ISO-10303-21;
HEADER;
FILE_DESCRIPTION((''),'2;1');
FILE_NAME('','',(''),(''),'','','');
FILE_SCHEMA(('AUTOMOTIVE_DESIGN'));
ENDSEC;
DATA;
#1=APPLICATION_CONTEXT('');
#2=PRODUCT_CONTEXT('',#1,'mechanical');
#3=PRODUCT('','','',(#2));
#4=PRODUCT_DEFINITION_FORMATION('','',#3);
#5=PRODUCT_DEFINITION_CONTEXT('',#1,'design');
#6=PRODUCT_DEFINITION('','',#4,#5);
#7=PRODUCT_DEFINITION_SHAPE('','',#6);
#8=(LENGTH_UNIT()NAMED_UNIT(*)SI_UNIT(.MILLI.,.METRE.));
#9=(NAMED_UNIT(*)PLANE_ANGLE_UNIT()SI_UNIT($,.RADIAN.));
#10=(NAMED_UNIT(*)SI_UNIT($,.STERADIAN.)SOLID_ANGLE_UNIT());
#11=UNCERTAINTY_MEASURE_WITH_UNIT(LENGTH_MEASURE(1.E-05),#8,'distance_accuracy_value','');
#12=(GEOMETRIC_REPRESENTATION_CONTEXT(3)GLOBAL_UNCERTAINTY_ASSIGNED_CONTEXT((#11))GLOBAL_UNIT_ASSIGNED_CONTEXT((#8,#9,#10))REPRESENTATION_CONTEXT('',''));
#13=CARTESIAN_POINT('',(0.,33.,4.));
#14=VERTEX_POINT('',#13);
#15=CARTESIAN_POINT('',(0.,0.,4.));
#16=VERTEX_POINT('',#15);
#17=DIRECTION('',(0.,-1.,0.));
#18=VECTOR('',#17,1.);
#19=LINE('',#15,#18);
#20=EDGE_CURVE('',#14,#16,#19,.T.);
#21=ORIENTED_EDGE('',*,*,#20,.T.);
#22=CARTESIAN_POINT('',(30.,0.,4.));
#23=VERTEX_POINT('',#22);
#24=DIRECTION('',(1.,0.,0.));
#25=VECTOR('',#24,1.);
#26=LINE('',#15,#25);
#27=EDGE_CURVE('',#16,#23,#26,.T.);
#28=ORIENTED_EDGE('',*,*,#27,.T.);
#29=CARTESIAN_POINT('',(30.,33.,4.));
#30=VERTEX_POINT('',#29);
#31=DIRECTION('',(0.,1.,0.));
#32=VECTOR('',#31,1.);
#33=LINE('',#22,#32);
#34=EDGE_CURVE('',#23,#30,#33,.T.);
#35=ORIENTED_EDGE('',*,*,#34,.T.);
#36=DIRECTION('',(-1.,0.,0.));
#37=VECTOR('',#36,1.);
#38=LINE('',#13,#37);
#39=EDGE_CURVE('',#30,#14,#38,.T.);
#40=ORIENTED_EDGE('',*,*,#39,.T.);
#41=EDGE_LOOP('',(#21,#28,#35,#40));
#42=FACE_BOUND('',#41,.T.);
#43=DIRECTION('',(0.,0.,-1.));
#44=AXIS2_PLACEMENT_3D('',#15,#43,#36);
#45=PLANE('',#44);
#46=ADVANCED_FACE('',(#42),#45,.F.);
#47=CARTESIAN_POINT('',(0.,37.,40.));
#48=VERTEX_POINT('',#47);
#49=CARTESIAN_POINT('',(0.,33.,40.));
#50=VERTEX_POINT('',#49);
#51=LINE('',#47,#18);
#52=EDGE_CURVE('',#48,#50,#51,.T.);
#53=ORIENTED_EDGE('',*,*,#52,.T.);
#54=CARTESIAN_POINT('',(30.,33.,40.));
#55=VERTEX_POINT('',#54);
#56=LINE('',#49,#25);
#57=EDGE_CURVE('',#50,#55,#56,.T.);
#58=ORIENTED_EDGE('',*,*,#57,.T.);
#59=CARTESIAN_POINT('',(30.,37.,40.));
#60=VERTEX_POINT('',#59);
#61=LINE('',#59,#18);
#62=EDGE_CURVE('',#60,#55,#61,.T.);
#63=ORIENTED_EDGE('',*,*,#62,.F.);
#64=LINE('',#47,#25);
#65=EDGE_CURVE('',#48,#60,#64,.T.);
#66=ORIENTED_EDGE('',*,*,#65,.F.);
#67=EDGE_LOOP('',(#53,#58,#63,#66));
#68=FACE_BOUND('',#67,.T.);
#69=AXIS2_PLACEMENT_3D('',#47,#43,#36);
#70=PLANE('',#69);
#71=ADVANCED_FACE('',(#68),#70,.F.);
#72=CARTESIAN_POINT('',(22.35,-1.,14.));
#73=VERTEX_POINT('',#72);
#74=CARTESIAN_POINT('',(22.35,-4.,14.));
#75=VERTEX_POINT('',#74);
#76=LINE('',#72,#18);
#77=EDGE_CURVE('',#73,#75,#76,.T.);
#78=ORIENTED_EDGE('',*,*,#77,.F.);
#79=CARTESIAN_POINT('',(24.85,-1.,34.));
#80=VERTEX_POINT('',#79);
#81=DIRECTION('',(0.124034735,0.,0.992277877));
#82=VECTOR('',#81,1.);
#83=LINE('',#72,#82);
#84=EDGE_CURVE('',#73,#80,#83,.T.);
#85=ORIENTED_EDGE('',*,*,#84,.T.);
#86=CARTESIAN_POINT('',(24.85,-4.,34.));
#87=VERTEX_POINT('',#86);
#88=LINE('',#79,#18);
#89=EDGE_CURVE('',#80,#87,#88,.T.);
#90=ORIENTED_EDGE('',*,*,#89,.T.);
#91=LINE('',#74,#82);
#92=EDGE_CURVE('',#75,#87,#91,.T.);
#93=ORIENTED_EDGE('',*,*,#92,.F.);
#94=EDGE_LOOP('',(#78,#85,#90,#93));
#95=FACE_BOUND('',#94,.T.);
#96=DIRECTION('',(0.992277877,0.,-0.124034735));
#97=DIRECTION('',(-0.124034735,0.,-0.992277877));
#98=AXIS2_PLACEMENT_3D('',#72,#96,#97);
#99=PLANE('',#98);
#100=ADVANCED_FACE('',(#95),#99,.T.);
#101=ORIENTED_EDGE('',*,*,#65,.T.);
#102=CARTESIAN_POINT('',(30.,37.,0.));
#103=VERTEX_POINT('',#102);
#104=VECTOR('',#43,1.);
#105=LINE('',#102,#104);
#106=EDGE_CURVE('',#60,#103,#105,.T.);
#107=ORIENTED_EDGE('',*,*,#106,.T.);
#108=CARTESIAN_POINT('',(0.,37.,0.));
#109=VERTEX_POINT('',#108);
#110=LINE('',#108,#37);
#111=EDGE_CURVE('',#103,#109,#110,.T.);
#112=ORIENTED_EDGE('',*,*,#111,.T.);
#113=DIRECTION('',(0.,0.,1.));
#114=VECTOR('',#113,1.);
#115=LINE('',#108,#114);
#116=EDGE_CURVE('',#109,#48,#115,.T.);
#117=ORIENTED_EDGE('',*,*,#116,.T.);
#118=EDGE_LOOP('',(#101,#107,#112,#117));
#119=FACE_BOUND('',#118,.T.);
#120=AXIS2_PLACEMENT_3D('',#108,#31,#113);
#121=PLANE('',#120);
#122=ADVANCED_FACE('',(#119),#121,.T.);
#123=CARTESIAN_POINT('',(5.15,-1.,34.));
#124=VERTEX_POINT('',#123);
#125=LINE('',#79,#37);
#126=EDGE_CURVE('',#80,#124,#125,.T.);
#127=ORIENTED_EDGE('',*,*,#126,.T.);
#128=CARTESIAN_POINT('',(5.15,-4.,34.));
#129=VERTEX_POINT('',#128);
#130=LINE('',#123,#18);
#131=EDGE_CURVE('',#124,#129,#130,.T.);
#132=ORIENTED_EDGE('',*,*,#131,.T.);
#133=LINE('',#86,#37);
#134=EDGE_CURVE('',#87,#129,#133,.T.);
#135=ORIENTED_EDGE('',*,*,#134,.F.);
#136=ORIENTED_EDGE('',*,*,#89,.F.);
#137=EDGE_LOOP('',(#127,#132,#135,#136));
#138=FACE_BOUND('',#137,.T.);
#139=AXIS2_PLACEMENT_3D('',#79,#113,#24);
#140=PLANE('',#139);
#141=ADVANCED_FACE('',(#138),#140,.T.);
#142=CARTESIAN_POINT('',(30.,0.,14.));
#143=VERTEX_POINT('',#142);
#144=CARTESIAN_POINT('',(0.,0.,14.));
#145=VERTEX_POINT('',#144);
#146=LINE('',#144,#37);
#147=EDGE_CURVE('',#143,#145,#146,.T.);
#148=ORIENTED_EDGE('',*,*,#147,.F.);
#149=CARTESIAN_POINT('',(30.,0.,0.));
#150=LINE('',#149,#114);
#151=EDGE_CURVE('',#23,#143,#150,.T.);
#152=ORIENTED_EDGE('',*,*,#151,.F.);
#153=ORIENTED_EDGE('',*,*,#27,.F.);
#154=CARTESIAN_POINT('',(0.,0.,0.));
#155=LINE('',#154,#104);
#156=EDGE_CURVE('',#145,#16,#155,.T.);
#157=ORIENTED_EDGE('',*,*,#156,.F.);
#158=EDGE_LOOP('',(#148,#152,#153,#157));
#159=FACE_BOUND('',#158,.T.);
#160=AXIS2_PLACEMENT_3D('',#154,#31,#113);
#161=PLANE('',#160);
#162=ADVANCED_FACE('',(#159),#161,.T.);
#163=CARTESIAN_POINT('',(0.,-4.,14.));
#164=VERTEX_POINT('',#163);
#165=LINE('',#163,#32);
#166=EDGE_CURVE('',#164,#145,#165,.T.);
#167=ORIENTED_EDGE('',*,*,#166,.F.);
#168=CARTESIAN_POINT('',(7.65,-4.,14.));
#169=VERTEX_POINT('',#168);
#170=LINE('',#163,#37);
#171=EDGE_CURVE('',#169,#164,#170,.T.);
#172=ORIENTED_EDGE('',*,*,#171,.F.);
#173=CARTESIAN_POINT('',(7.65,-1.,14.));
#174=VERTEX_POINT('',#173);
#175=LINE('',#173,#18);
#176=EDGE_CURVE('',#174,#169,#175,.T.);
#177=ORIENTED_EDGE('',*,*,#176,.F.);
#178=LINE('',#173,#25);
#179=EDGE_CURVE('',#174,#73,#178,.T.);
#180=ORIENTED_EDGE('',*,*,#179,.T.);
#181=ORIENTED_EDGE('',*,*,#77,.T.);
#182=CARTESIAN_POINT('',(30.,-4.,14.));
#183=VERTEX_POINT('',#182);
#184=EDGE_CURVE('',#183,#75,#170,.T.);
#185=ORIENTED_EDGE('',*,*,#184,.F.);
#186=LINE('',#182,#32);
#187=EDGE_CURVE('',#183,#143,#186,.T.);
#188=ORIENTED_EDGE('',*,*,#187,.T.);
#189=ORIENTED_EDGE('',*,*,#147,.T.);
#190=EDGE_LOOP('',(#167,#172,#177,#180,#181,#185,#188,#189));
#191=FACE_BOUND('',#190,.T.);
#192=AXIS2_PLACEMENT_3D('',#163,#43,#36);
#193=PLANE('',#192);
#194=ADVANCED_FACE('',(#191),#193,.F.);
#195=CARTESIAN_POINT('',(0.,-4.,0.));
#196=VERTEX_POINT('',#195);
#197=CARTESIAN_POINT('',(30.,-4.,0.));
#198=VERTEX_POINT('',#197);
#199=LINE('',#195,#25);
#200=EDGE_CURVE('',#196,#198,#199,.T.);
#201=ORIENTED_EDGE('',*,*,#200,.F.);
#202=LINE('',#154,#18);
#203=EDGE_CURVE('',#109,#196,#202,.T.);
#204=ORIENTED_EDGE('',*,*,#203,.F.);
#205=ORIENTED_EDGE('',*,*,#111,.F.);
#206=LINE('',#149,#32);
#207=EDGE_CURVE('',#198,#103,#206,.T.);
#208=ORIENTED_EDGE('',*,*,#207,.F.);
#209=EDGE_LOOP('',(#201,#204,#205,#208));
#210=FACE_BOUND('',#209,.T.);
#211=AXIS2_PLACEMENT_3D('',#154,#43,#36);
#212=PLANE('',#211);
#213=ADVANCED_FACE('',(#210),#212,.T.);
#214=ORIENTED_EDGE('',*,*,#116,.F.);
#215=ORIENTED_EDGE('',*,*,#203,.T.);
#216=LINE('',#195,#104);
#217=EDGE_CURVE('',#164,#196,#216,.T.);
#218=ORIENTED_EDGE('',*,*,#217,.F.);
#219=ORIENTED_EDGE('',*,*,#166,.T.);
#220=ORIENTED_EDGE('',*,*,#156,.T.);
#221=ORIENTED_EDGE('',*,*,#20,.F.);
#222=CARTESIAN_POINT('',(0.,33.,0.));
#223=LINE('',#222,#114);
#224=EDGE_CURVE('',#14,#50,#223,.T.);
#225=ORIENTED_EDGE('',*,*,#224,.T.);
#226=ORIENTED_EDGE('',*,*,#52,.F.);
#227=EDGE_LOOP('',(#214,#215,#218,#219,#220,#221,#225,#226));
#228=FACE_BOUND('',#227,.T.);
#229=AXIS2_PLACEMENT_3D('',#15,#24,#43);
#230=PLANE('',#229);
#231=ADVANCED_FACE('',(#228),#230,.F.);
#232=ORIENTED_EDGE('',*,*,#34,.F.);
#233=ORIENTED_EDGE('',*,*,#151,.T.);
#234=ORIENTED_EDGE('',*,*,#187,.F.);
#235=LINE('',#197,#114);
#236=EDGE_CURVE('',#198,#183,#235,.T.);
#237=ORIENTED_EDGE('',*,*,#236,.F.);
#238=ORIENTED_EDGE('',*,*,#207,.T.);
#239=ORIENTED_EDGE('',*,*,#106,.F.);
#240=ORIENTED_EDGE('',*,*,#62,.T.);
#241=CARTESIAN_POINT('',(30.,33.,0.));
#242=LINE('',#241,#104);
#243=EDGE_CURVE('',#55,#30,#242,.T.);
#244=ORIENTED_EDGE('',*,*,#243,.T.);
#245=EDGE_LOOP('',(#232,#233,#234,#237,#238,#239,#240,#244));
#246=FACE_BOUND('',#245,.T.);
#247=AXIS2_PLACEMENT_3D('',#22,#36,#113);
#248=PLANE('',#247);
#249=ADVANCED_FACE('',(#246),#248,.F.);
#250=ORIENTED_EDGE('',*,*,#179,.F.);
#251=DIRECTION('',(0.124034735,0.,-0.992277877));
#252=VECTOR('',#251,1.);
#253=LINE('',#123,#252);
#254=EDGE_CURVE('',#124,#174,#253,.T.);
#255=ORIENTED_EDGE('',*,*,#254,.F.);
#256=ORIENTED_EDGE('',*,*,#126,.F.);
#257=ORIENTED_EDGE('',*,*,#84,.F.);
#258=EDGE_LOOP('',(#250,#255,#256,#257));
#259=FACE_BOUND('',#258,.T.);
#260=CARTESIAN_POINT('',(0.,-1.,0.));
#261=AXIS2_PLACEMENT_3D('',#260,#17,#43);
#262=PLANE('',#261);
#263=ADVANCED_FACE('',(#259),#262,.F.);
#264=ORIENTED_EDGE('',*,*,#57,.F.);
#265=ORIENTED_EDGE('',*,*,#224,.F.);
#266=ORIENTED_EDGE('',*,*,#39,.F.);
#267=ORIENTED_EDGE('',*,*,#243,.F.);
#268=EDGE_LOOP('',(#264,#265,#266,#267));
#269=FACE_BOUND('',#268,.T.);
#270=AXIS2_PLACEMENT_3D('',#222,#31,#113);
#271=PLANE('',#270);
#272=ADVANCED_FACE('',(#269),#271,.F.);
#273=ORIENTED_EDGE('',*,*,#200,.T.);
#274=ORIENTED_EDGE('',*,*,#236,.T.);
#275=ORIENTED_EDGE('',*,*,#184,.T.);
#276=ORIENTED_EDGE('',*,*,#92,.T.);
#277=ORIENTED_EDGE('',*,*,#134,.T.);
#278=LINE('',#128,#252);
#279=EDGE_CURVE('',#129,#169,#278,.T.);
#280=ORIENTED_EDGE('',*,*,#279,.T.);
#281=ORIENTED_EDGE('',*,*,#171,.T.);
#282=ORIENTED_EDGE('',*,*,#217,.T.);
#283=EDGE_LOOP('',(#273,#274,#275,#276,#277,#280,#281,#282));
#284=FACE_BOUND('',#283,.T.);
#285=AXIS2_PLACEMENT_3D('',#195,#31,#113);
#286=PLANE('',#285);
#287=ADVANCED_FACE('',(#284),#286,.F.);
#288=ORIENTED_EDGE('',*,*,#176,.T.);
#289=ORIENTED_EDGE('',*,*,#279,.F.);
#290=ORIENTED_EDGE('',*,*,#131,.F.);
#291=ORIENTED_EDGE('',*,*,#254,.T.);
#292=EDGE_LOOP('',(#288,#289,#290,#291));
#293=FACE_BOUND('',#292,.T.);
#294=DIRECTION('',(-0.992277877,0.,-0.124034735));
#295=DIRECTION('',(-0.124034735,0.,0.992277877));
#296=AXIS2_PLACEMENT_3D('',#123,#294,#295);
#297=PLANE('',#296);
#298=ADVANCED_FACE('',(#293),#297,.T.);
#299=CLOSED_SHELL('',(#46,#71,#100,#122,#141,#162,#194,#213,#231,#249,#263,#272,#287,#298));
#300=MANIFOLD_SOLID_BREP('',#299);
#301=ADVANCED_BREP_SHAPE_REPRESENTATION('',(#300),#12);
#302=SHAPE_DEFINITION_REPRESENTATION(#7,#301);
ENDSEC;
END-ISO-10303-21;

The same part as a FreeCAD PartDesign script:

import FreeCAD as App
import Part
import Sketcher
from FreeCAD import Vector
Q = App.Units.Quantity


def add_polygon(sketch, points):
    """Adds a closed chain of lines whose ends are joined by coincident constraints."""
    first, n = sketch.GeometryCount, len(points)
    for a, b in zip(points, points[1:] + points[:1]):
        sketch.addGeometry(Part.LineSegment(App.Vector(*a, 0), App.Vector(*b, 0)), False)
    for i in range(n):
        sketch.addConstraint(Sketcher.Constraint("Coincident", first + i, 2, first + (i + 1) % n, 1))

doc = App.newDocument("Part")
body = doc.addObject("PartDesign::Body", "Body")

# Sketch on XY plane
sketch1 = body.newObject("Sketcher::SketchObject", "Sketch")
sketch1.AttachmentSupport = (doc.getObject("XY_Plane"), [""])
sketch1.MapMode = "FlatFace"
add_polygon(sketch1, [(0, 33), (0, 0), (30, 0), (30, 33)])  # lines 0-3
sketch1.addConstraint(Sketcher.Constraint("Vertical", 0))
sketch1.addConstraint(Sketcher.Constraint("Horizontal", 1))
sketch1.addConstraint(Sketcher.Constraint("Vertical", 2))
sketch1.addConstraint(Sketcher.Constraint("Horizontal", 3))
sketch1.addConstraint(Sketcher.Constraint("Coincident", 0, 2, -1, 1))
sketch1.addConstraint(Sketcher.Constraint("DistanceX", 1, 1, 1, 2, Q("30 mm")))
sketch1.addConstraint(Sketcher.Constraint("DistanceY", 0, 2, 0, 1, Q("33 mm")))
pad1 = body.newObject("PartDesign::Pad", "Pad")
pad1.Profile = sketch1
pad1.Length = 4

# Sketch on XZ plane
sketch2 = body.newObject("Sketcher::SketchObject", "Sketch001")
sketch2.AttachmentSupport = (doc.getObject("XZ_Plane"), [""])
sketch2.MapMode = "FlatFace"
sketch2.AttachmentOffset = App.Placement(Vector(0, 0, -33), App.Rotation())
add_polygon(sketch2, [(0, 0), (0, 40), (30, 40), (30, 0)])  # lines 0-3
sketch2.addConstraint(Sketcher.Constraint("Vertical", 0))
sketch2.addConstraint(Sketcher.Constraint("Horizontal", 1))
sketch2.addConstraint(Sketcher.Constraint("Vertical", 2))
sketch2.addConstraint(Sketcher.Constraint("Horizontal", 3))
sketch2.addConstraint(Sketcher.Constraint("Coincident", 3, 2, -1, 1))
sketch2.addConstraint(Sketcher.Constraint("DistanceX", 1, 1, 1, 2, Q("30 mm")))
sketch2.addConstraint(Sketcher.Constraint("DistanceY", 0, 1, 0, 2, Q("40 mm")))
pad2 = body.newObject("PartDesign::Pad", "Pad001")
pad2.Profile = sketch2
pad2.Length = 4
pad2.Reversed = True

# Sketch on XZ plane
sketch3 = body.newObject("Sketcher::SketchObject", "Sketch002")
sketch3.AttachmentSupport = (doc.getObject("XZ_Plane"), [""])
sketch3.MapMode = "FlatFace"
add_polygon(sketch3, [(0, 14), (0, 0), (30, 0), (30, 14)])  # lines 0-3
sketch3.addConstraint(Sketcher.Constraint("Vertical", 0))
sketch3.addConstraint(Sketcher.Constraint("Horizontal", 1))
sketch3.addConstraint(Sketcher.Constraint("Vertical", 2))
sketch3.addConstraint(Sketcher.Constraint("Horizontal", 3))
sketch3.addConstraint(Sketcher.Constraint("Coincident", 0, 2, -1, 1))
sketch3.addConstraint(Sketcher.Constraint("DistanceX", 1, 1, 1, 2, Q("30 mm")))
sketch3.addConstraint(Sketcher.Constraint("DistanceY", 0, 2, 0, 1, Q("14 mm")))
pad3 = body.newObject("PartDesign::Pad", "Pad002")
pad3.Profile = sketch3
pad3.Length = 4

# Sketch on XZ plane
sketch4 = body.newObject("Sketcher::SketchObject", "Sketch003")
sketch4.AttachmentSupport = (doc.getObject("XZ_Plane"), [""])
sketch4.MapMode = "FlatFace"
sketch4.AttachmentOffset = App.Placement(Vector(0, 0, 4), App.Rotation())
add_polygon(sketch4, [(8, 14), (22, 14), (25, 34), (5, 34)])  # lines 0-3
sketch4.addConstraint(Sketcher.Constraint("Horizontal", 0))
sketch4.addConstraint(Sketcher.Constraint("Horizontal", 2))
sketch4.addConstraint(Sketcher.Constraint("Equal", 1, 3))
sketch4.addConstraint(Sketcher.Constraint("DistanceX", 0, 1, 0, 2, Q("14.7 mm")))
sketch4.addConstraint(Sketcher.Constraint("DistanceX", 2, 2, 2, 1, Q("19.7 mm")))
sketch4.addConstraint(Sketcher.Constraint("DistanceY", -1, 1, 0, 2, Q("14 mm")))
sketch4.addConstraint(Sketcher.Constraint("DistanceY", -1, 1, 1, 2, Q("34 mm")))
sketch4.addConstraint(Sketcher.Constraint("DistanceX", -1, 1, 0, 2, Q("22.35 mm")))
pad4 = body.newObject("PartDesign::Pad", "Pad003")
pad4.Profile = sketch4
pad4.Length = 3
pad4.Reversed = True

doc.recompute()
